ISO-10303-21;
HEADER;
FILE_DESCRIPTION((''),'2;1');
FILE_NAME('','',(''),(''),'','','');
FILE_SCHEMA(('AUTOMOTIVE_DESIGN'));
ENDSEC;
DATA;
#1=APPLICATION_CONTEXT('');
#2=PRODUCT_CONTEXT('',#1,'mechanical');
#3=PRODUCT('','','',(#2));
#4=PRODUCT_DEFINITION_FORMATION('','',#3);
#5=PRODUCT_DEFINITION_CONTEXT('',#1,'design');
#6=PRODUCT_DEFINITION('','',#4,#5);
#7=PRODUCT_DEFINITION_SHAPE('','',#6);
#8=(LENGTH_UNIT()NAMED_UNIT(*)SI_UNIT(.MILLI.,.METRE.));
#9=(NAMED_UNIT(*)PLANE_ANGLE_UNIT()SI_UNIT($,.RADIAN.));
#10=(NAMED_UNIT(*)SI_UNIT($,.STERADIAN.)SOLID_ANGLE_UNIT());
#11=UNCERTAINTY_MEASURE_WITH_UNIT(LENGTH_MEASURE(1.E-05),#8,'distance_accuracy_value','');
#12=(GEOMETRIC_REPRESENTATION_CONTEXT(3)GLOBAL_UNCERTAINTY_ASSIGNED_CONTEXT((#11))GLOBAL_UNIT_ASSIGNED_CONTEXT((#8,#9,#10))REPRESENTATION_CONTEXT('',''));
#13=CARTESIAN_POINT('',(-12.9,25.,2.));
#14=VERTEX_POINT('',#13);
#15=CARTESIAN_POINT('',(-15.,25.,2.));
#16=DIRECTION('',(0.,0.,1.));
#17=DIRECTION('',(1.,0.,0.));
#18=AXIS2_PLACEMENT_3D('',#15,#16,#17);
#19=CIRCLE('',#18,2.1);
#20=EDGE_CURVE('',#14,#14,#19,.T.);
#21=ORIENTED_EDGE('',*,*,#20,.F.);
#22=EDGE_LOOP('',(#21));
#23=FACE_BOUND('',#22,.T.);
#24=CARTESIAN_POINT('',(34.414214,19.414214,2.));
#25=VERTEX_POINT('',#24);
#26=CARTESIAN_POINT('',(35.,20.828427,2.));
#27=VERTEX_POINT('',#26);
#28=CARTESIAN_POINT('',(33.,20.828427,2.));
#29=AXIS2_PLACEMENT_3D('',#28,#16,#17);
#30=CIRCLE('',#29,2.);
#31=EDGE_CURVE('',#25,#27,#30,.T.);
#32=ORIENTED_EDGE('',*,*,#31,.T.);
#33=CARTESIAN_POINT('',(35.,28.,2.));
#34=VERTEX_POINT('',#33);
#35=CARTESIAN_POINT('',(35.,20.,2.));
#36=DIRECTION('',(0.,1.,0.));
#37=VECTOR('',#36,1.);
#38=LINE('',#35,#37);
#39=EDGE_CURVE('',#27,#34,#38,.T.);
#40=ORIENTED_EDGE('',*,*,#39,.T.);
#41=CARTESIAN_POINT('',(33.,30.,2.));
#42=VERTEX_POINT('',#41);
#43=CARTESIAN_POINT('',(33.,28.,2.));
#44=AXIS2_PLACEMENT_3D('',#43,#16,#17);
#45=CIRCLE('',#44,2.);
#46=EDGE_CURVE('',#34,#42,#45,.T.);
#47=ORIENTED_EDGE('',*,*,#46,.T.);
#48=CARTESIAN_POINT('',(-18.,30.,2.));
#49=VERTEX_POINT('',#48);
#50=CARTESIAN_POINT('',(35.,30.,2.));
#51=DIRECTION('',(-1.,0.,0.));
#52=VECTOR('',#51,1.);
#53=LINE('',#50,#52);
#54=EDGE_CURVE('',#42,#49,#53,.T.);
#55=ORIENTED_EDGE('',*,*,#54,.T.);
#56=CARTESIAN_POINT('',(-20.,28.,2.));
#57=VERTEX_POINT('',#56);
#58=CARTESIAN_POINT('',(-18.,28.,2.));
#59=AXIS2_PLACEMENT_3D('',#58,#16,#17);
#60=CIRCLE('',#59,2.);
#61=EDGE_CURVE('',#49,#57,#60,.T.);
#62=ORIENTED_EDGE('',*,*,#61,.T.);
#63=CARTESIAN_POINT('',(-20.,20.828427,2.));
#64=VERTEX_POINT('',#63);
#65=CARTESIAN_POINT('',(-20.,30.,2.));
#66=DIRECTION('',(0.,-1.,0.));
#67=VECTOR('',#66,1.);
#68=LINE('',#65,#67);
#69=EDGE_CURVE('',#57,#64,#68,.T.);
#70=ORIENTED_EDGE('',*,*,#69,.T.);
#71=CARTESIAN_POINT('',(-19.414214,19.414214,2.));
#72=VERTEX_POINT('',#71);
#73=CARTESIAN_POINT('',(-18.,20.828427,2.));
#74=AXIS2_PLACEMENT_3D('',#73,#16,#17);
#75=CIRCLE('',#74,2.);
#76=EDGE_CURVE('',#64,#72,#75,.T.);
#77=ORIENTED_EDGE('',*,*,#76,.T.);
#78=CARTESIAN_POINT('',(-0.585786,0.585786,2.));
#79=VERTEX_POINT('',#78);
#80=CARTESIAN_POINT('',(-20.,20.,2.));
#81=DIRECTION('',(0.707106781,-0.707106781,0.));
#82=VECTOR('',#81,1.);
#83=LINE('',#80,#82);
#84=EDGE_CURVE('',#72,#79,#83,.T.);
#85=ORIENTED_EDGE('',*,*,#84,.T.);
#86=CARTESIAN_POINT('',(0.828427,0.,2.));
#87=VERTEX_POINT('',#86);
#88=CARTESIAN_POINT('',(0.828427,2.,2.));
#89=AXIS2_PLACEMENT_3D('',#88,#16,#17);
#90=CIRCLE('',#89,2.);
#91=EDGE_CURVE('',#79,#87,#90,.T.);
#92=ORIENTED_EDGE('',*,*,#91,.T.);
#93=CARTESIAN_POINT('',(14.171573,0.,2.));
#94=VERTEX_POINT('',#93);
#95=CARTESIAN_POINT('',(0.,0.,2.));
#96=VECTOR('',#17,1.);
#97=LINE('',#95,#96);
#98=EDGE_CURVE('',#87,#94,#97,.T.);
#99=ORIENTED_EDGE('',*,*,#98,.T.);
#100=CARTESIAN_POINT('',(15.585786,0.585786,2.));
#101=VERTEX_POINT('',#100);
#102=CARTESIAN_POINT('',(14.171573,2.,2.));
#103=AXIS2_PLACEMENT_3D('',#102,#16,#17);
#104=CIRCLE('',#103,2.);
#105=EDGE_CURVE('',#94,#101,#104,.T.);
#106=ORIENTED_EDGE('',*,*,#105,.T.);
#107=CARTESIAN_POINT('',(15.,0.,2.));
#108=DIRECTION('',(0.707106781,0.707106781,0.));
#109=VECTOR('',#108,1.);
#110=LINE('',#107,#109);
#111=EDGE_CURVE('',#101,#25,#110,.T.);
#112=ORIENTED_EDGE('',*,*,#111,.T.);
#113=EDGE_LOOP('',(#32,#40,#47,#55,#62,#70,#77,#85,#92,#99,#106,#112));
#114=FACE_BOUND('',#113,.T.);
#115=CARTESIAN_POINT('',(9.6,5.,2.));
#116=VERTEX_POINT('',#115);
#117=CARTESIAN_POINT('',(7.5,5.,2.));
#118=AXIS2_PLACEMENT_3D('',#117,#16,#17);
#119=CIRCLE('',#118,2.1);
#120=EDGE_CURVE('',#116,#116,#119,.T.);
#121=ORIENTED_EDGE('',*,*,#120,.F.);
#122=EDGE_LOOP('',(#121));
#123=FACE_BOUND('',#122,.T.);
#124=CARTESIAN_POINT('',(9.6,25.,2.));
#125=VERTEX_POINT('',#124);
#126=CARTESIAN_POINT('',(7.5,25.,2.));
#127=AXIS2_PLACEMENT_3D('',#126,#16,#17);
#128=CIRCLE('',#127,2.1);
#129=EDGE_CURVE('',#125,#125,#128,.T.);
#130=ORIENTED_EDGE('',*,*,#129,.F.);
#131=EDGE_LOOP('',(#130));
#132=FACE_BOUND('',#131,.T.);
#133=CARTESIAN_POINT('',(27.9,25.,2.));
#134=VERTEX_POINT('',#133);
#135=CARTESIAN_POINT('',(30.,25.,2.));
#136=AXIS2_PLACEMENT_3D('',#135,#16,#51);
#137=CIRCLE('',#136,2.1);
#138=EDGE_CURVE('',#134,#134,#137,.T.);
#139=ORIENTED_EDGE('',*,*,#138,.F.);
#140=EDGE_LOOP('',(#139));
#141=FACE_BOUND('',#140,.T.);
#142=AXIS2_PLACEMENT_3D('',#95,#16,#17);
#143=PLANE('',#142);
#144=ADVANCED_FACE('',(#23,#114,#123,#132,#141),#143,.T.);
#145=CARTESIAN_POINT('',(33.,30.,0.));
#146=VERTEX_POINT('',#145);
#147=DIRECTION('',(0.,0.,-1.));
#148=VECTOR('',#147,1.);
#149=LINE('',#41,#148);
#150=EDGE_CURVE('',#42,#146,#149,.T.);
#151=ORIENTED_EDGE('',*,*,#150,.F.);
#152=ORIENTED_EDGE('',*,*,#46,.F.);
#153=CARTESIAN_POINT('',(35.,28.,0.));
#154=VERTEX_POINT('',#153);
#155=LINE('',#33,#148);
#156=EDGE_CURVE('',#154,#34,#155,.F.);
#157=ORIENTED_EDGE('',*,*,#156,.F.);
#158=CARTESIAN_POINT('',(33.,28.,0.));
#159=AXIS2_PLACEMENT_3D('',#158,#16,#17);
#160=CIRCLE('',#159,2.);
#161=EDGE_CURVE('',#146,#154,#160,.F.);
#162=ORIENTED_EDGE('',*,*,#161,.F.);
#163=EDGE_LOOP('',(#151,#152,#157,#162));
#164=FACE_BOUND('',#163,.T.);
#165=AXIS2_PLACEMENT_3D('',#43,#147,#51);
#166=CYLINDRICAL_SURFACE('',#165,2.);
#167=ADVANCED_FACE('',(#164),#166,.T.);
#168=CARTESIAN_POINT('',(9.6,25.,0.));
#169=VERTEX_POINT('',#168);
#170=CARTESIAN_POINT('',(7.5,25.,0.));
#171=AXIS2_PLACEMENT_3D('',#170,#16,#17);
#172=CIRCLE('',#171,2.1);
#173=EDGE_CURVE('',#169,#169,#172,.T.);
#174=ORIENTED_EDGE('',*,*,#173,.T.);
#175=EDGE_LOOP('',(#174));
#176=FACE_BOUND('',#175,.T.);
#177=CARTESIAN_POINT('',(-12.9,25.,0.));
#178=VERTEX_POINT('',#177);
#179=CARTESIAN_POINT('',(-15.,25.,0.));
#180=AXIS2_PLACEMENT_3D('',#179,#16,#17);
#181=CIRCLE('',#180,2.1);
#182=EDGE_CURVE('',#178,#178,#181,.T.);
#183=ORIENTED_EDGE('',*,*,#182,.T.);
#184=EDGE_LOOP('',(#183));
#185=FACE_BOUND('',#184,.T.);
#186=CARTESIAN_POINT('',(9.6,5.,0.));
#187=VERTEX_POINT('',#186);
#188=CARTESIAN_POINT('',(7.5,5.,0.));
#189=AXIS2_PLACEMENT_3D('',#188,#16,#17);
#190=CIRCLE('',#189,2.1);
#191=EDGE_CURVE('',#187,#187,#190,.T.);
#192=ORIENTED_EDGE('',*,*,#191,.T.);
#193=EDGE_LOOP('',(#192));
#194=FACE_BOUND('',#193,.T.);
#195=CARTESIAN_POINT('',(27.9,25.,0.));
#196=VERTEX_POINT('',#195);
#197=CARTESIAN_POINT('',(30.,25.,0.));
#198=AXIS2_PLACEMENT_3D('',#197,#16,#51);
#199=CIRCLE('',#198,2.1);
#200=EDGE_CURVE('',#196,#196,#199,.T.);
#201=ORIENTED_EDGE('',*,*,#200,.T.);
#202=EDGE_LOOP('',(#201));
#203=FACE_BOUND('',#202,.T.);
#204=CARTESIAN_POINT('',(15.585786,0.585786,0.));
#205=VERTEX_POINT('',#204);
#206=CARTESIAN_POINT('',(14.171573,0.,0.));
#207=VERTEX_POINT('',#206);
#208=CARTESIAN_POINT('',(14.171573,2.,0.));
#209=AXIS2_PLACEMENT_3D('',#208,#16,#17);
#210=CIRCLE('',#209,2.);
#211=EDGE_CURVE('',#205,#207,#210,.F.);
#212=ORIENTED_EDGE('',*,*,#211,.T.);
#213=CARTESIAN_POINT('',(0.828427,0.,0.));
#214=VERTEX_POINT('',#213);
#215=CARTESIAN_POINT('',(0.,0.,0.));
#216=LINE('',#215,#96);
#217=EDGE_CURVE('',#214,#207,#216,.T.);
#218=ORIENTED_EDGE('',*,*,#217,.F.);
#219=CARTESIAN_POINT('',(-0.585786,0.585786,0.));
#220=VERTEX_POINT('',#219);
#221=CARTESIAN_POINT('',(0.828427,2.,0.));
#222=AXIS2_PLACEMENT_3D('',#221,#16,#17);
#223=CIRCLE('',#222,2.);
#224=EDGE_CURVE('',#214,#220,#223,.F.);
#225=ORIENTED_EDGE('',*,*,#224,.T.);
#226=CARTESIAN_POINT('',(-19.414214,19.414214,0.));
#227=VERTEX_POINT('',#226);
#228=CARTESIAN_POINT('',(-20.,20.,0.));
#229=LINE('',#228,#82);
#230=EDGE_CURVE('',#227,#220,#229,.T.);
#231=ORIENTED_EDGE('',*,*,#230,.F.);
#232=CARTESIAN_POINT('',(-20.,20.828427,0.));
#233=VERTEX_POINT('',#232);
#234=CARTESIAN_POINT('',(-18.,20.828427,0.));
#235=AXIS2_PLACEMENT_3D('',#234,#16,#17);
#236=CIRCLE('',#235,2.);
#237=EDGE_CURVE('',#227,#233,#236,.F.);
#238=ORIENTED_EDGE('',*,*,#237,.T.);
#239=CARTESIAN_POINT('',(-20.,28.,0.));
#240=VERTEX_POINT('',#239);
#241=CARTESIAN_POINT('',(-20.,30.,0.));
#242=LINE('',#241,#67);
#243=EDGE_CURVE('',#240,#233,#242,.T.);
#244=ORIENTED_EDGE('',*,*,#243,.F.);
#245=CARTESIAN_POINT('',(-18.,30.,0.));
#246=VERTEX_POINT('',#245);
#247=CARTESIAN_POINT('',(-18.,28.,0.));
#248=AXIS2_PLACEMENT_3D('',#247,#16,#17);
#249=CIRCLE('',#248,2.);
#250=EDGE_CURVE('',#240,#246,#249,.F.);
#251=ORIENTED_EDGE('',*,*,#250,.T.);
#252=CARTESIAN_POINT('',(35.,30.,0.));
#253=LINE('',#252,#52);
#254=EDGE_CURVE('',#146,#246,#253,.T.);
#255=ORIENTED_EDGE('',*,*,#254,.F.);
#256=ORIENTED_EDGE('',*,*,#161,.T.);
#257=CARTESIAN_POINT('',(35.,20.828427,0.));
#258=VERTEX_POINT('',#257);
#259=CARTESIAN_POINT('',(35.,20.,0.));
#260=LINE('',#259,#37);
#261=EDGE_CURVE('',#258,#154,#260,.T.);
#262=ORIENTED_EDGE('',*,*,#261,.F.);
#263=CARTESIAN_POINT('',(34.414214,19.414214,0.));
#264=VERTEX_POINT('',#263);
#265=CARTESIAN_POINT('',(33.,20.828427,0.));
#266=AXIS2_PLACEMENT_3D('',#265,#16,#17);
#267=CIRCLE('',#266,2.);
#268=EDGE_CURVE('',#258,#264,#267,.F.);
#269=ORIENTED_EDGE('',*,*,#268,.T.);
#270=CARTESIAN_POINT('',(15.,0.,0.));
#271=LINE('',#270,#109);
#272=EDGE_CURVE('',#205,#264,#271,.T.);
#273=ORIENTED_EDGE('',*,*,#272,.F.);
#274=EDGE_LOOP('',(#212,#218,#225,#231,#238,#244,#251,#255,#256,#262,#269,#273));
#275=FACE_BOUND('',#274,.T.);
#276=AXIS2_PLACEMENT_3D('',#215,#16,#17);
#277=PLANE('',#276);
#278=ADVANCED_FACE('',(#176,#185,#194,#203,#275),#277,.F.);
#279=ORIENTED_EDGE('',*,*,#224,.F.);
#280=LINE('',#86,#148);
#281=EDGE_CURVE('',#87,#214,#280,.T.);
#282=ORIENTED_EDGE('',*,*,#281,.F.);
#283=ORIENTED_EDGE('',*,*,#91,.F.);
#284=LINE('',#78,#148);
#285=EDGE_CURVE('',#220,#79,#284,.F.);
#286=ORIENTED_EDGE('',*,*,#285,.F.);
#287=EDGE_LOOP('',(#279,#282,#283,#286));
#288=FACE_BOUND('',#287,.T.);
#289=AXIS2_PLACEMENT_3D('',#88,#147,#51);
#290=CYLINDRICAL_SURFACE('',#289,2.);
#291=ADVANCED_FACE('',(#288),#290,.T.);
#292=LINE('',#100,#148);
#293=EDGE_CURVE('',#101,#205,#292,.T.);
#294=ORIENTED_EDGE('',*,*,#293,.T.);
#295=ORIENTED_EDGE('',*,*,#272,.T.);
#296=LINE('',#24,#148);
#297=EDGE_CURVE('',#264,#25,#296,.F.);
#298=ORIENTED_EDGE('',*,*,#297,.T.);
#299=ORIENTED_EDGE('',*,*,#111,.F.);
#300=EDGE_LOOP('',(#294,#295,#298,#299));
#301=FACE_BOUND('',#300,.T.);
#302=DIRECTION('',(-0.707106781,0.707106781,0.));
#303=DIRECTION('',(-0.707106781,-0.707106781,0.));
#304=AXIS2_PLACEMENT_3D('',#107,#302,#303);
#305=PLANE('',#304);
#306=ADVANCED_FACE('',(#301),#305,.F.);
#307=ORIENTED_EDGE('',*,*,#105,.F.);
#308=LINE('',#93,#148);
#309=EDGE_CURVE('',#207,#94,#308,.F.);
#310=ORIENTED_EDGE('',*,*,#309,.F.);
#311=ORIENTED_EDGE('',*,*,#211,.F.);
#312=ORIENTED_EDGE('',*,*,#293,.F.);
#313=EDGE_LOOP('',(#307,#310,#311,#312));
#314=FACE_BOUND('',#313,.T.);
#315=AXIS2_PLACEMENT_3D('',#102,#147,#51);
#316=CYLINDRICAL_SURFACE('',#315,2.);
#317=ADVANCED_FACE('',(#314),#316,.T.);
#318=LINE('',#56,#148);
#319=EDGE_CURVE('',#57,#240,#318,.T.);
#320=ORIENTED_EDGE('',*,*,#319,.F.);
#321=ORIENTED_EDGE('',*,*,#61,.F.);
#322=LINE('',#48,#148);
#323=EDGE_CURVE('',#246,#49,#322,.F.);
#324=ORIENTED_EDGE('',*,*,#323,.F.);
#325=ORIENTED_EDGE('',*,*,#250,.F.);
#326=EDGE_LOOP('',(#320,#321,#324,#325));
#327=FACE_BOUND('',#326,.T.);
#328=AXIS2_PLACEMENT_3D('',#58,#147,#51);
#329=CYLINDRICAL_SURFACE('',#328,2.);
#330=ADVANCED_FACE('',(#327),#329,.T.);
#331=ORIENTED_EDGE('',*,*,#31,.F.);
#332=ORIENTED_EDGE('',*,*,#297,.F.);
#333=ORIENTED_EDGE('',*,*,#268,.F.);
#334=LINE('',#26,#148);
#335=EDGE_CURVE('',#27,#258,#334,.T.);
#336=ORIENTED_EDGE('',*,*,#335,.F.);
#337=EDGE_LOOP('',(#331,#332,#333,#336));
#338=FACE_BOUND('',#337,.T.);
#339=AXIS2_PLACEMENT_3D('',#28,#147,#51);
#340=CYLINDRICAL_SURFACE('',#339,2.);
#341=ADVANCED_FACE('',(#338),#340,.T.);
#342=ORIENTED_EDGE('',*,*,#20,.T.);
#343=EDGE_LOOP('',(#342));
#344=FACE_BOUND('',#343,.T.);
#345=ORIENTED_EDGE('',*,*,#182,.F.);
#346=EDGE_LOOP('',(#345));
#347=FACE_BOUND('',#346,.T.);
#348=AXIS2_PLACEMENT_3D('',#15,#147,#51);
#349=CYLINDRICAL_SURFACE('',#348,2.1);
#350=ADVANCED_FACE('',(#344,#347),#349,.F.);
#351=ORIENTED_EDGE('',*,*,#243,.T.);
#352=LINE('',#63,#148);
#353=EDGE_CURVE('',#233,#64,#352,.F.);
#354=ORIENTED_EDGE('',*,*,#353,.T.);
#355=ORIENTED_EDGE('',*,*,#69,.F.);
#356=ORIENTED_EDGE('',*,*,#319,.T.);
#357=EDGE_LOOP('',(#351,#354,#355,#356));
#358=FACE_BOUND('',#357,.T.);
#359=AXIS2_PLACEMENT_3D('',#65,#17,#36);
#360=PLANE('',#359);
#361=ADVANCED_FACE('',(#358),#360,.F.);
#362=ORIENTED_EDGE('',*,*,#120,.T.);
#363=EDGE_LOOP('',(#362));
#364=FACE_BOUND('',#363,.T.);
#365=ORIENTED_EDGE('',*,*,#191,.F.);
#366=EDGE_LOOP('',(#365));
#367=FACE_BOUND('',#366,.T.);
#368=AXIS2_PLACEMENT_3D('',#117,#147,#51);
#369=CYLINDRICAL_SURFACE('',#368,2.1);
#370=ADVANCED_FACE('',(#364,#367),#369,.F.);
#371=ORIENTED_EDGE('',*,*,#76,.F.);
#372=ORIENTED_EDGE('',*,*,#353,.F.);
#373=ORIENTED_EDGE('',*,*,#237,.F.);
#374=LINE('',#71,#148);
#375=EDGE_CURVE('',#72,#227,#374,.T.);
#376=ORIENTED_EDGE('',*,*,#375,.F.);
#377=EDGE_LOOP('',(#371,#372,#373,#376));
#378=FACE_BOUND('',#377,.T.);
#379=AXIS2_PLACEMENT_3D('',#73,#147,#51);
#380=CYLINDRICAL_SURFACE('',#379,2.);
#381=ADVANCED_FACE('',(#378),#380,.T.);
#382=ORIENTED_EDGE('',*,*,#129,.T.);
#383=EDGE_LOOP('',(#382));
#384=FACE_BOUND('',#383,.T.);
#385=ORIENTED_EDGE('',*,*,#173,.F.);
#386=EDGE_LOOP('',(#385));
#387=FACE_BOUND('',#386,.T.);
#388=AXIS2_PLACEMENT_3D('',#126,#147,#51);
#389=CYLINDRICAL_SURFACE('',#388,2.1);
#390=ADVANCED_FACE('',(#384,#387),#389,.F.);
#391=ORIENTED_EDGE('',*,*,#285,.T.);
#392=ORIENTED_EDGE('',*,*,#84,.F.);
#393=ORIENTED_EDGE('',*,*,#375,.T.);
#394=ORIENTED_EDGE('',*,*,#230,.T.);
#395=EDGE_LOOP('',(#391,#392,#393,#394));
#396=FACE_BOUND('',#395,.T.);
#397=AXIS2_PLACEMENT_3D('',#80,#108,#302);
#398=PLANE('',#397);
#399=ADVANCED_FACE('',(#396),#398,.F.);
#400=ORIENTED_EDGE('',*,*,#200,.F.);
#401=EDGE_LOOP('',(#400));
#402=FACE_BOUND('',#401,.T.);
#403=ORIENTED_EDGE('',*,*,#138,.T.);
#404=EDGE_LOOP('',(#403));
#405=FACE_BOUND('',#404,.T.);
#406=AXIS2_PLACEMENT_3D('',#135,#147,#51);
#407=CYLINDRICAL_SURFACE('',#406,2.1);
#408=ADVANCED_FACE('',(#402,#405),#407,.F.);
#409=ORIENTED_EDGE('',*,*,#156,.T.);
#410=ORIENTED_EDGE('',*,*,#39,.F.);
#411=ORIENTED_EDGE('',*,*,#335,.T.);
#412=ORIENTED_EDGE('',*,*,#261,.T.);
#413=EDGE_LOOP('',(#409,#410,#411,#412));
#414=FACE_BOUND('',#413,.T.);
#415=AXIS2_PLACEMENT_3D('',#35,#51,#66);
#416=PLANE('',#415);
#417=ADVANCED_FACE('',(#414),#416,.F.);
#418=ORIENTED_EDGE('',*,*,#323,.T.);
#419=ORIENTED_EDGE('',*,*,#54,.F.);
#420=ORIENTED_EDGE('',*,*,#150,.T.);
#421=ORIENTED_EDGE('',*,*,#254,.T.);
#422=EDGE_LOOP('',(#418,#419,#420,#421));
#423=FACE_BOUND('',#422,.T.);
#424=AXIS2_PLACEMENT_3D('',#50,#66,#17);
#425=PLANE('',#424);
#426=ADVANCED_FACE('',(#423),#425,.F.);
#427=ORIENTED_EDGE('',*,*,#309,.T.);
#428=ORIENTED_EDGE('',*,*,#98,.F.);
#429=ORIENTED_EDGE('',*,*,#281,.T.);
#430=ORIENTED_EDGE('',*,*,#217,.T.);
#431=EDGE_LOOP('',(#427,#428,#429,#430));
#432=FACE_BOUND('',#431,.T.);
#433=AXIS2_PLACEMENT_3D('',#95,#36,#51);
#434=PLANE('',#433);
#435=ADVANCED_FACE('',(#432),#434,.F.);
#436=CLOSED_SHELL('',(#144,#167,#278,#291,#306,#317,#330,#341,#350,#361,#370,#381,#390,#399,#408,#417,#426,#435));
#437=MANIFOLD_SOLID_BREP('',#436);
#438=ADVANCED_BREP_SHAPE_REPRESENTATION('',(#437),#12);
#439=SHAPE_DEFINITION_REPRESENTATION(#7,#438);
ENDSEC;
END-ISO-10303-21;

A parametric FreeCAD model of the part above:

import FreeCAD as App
import Part
import Sketcher


def edges_at(feature, points):
    """Names of the edges that pass closest to the given points."""
    edges = feature.Shape.Edges
    near = lambda p: min(range(len(edges)), key=lambda i: edges[i].distToShape(Part.Vertex(*p))[0])
    return sorted({f"Edge{near(p) + 1}" for p in points})

doc = App.newDocument("Part")
body = doc.addObject("PartDesign::Body", "Body")

# Sketch on XY plane
sketch1 = body.newObject("Sketcher::SketchObject", "Sketch")
sketch1.AttachmentSupport = (doc.getObject("XY_Plane"), [""])
sketch1.MapMode = "FlatFace"
sketch1.addGeometry(Part.LineSegment(App.Vector(0, 0, 0), App.Vector(15, 0, 0)), False)
sketch1.addGeometry(Part.LineSegment(App.Vector(15, 0, 0), App.Vector(35, 20, 0)), False)
sketch1.addGeometry(Part.LineSegment(App.Vector(35, 20, 0), App.Vector(35, 30, 0)), False)
sketch1.addGeometry(Part.LineSegment(App.Vector(35, 30, 0), App.Vector(-20, 30, 0)), False)
sketch1.addGeometry(Part.LineSegment(App.Vector(-20, 30, 0), App.Vector(-20, 20, 0)), False)
sketch1.addGeometry(Part.LineSegment(App.Vector(-20, 20, 0), App.Vector(0, 0, 0)), False)
sketch1.addGeometry(Part.Circle(App.Vector(7.5, 5, 0), App.Vector(0, 0, 1), 2.1), False)
sketch1.addGeometry(Part.Circle(App.Vector(-15, 25, 0), App.Vector(0, 0, 1), 2.1), False)
sketch1.addGeometry(Part.Circle(App.Vector(7.5, 25, 0), App.Vector(0, 0, 1), 2.1), False)
sketch1.addGeometry(Part.Circle(App.Vector(30, 25, 0), App.Vector(0, 0, 1), 2.1), False)
sketch1.addConstraint(Sketcher.Constraint("Coincident", 0, 2, 1, 1))
sketch1.addConstraint(Sketcher.Constraint("Coincident", 1, 2, 2, 1))
sketch1.addConstraint(Sketcher.Constraint("Coincident", 2, 2, 3, 1))
sketch1.addConstraint(Sketcher.Constraint("Coincident", 3, 2, 4, 1))
sketch1.addConstraint(Sketcher.Constraint("Coincident", 4, 2, 5, 1))
sketch1.addConstraint(Sketcher.Constraint("Coincident", 5, 2, 0, 1))
sketch1.addConstraint(Sketcher.Constraint("Horizontal", 0))
sketch1.addConstraint(Sketcher.Constraint("Vertical", 2))
sketch1.addConstraint(Sketcher.Constraint("Horizontal", 3))
sketch1.addConstraint(Sketcher.Constraint("Vertical", 4))
sketch1.addConstraint(Sketcher.Constraint("Coincident", 5, 2, -1, 1))
sketch1.addConstraint(Sketcher.Constraint("Equal", 6, 7))
sketch1.addConstraint(Sketcher.Constraint("Equal", 7, 8))
sketch1.addConstraint(Sketcher.Constraint("Equal", 8, 9))
sketch1.addConstraint(Sketcher.Constraint("Perpendicular", 1, 5))
sketch1.addConstraint(Sketcher.Constraint("Horizontal", 7, 3, 8, 3))
sketch1.addConstraint(Sketcher.Constraint("Horizontal", 8, 3, 9, 3))
sketch1.addConstraint(Sketcher.Constraint("Horizontal", 1, 2, 4, 2))
sketch1.addConstraint(Sketcher.Constraint("Vertical", 6, 3, 8, 3))
sketch1.addConstraint(Sketcher.Constraint("Equal", 1, 5))
sketch1.addConstraint(Sketcher.Constraint("Diameter", 6, 4.2))
sketch1.addConstraint(Sketcher.Constraint("DistanceX", 0, 1, 0, 2, 15.0))
sketch1.addConstraint(Sketcher.Constraint("DistanceX", 3, 2, 3, 1, 55.0))
sketch1.addConstraint(Sketcher.Constraint("DistanceY", 2, 1, 2, 2, 10.0))
sketch1.addConstraint(Sketcher.Constraint("DistanceY", -1, 1, 6, 3, 5.0))
sketch1.addConstraint(Sketcher.Constraint("DistanceX", 7, 3, -1, 1, 15.0))
sketch1.addConstraint(Sketcher.Constraint("DistanceY", -1, 1, 7, 3, 25.0))
sketch1.addConstraint(Sketcher.Constraint("DistanceX", -1, 1, 9, 3, 30.0))
sketch1.addConstraint(Sketcher.Constraint("DistanceX", -1, 1, 6, 3, 7.5))
pad1 = body.newObject("PartDesign::Pad", "Pad")
pad1.Profile = sketch1
pad1.Length = 2
doc.recompute()

fillet = body.newObject("PartDesign::Fillet", "Fillet")
fillet.Base = (pad1, edges_at(pad1, [
    (-20, 20, 1),
    (-20, 30, 1),
    (35, 30, 1),
    (35, 20, 1),
    (15, 0, 1),
    (0, 0, 1),
]))
fillet.Radius = 2

doc.recompute()
